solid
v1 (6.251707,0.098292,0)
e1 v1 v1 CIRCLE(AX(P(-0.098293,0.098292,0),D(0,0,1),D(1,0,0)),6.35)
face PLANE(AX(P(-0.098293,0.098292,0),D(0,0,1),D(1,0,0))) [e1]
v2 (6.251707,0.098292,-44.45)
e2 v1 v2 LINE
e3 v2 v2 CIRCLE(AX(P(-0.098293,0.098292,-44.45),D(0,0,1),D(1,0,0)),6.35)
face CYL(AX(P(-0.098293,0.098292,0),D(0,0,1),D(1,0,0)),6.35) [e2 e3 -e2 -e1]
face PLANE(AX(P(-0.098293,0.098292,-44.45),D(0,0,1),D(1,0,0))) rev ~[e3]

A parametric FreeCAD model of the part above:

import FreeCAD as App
import Part
import Sketcher
Q = App.Units.Quantity

doc = App.newDocument("Part")
body = doc.addObject("PartDesign::Body", "Body")

sketch1 = body.newObject("Sketcher::SketchObject", "Sketch")
sketch1.AttachmentSupport = (doc.getObject("XY_Plane"), [""])
sketch1.MapMode = "FlatFace"
sketch1.addGeometry(Part.Circle(App.Vector(-0.098293, 0.098292, 0), App.Vector(0, 0, 1), 6.35), False)
sketch1.addConstraint(Sketcher.Constraint("Diameter", 0, Q("0.5 in")))
sketch1.addConstraint(Sketcher.Constraint("DistanceX", 0, 3, -1, 1, Q("0.098293 mm")))
sketch1.addConstraint(Sketcher.Constraint("DistanceY", -1, 1, 0, 3, Q("0.098292 mm")))
pad1 = body.newObject("PartDesign::Pad", "Pad")
pad1.Profile = sketch1
pad1.Length = Q("1.75 in")
pad1.Reversed = True

doc.recompute()
